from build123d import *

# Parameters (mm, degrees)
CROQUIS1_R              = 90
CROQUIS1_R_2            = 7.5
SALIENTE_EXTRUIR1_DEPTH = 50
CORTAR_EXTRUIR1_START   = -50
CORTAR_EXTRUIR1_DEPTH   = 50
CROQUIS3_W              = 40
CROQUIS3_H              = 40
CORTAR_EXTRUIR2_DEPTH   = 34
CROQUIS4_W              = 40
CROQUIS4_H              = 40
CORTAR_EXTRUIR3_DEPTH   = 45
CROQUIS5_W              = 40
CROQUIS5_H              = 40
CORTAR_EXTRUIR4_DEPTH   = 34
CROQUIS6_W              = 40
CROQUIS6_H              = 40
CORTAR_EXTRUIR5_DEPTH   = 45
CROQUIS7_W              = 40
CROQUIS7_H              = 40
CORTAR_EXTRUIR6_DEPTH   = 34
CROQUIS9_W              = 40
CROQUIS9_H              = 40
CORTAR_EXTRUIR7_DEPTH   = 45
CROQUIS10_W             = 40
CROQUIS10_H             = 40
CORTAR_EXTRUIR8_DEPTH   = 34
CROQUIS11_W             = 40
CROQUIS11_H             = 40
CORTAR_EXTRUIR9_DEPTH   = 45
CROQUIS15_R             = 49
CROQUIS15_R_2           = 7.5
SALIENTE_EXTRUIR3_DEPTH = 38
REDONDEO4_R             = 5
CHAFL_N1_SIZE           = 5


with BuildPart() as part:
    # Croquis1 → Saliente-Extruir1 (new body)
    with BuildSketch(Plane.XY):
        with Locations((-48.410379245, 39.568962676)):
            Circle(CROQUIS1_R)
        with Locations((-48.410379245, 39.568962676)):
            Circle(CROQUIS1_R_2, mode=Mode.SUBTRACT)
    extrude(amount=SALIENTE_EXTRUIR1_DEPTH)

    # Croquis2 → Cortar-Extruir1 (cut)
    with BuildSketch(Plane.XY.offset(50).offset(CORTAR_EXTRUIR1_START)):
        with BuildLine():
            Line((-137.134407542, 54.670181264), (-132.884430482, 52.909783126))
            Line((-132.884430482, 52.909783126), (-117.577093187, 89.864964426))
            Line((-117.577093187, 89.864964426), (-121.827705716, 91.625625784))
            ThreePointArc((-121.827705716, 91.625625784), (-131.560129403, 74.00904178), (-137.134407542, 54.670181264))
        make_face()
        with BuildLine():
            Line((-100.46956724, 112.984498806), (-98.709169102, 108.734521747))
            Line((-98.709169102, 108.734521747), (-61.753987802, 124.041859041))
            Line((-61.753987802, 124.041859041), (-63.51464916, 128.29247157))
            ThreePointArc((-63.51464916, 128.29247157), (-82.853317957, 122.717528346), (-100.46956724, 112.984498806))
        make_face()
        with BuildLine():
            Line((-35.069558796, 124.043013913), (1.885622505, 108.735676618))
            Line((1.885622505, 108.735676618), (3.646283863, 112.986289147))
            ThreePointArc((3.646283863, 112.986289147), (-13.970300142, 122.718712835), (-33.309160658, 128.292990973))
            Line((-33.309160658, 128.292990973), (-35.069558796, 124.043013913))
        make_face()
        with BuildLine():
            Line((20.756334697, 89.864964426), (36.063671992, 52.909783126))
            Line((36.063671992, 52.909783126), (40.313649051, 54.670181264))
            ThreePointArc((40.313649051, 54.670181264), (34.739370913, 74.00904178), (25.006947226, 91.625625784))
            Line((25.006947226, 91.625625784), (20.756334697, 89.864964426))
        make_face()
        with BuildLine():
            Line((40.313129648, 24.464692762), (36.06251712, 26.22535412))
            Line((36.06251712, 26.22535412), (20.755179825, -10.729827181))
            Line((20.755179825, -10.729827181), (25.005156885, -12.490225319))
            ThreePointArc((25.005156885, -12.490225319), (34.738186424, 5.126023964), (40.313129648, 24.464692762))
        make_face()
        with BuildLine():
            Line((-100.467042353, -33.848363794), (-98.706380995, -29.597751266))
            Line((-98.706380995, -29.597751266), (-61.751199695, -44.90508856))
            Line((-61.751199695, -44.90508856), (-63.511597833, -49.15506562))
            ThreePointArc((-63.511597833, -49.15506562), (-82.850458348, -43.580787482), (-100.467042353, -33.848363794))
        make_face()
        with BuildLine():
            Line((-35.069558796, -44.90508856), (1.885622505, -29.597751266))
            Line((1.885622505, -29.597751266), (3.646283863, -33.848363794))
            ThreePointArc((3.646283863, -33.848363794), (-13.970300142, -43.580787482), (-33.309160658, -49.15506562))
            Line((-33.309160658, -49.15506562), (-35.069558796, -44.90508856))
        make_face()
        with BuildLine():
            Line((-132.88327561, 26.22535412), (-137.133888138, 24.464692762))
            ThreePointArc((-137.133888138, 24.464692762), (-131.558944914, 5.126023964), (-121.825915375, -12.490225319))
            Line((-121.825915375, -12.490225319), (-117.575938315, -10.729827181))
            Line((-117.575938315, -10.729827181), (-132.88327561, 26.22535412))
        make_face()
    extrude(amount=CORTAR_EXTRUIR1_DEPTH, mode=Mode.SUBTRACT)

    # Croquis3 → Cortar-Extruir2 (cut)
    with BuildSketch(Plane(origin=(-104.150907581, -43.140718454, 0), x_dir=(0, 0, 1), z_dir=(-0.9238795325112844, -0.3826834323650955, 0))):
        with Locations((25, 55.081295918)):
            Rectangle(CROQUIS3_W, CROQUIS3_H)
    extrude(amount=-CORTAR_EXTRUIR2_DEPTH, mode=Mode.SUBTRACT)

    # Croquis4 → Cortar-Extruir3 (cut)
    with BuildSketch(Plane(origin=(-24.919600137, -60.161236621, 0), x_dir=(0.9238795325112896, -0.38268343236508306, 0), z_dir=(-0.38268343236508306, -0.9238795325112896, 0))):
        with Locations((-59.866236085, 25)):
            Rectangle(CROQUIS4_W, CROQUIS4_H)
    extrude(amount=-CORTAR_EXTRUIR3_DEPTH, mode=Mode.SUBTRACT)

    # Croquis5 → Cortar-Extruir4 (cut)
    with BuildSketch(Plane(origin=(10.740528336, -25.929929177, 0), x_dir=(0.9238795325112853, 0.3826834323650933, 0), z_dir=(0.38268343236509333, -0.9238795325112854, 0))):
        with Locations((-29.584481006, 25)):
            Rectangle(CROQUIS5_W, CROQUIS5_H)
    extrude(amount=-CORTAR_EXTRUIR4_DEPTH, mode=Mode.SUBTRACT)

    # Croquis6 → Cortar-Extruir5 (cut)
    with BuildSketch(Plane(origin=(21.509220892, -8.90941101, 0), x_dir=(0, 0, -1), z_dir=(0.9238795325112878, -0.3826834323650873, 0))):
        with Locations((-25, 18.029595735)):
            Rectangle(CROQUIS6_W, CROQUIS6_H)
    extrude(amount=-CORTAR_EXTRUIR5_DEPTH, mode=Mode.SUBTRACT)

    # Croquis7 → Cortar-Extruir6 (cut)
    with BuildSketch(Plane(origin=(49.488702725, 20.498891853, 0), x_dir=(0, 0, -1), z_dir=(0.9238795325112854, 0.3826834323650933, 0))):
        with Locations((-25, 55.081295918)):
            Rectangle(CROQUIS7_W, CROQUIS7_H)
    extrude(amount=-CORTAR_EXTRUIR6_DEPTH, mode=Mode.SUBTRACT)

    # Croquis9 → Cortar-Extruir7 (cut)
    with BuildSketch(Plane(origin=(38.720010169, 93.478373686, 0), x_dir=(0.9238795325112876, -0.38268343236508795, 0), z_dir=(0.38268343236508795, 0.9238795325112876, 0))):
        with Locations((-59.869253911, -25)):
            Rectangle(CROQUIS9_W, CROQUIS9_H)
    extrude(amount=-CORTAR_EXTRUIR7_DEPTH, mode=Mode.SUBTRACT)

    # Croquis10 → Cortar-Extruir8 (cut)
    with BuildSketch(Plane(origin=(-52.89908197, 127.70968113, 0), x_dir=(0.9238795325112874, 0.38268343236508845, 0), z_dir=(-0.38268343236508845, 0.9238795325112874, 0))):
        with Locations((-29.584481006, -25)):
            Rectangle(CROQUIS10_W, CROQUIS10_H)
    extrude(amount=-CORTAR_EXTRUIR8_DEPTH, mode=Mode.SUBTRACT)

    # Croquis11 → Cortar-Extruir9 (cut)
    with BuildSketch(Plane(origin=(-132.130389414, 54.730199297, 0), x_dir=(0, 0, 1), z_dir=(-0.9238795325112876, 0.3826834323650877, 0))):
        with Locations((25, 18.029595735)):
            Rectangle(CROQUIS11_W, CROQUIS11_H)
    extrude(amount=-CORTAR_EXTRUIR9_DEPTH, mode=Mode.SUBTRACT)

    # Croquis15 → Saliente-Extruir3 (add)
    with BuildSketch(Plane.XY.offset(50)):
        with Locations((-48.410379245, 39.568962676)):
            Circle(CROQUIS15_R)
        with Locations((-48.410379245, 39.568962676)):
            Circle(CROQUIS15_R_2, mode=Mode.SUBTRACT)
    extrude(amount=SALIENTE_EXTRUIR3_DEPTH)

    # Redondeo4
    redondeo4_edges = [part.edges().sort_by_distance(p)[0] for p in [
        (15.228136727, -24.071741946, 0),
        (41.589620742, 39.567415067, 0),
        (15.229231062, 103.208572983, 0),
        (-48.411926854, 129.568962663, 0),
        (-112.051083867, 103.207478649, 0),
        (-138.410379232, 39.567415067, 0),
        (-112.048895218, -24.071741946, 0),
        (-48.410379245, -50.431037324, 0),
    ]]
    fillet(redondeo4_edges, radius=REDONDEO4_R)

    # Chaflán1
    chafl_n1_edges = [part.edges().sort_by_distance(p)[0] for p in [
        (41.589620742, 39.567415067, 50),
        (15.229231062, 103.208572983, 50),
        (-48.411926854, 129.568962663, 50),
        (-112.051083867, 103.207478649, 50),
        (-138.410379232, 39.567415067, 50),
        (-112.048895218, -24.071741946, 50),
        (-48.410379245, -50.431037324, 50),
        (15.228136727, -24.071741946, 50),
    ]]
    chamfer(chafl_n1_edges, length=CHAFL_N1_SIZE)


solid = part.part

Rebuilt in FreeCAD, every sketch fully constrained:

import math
import FreeCAD as App
import Part
import Sketcher

V = App.Vector
Q = App.Units.Quantity


def edges_at(feature, points):
    """Names of the edges that pass closest to the given points."""
    edges = feature.Shape.Edges
    near = lambda p: min(range(len(edges)), key=lambda i: edges[i].distToShape(Part.Vertex(*p))[0])
    return sorted({f"Edge{near(p) + 1}" for p in points})


def add_polygon(sketch, points):
    """Adds a closed chain of lines whose ends are joined by coincident constraints."""
    first, n = sketch.GeometryCount, len(points)
    for a, b in zip(points, points[1:] + points[:1]):
        sketch.addGeometry(Part.LineSegment(App.Vector(*a, 0), App.Vector(*b, 0)), False)
    for i in range(n):
        sketch.addConstraint(Sketcher.Constraint("Coincident", first + i, 2, first + (i + 1) % n, 1))

doc = App.newDocument("Part")
params = doc.addObject("Spreadsheet::Sheet", "Params")
for row, (alias, value) in enumerate([
    ("sketch1_diameter", "180 mm"),
    ("sketch1_diameter2", "15 mm"),
    ("pad1_length", "50 mm"),
    ("sketch2_radius", "90 mm"),
    ("sketch2_length", "40 mm"),
    ("pocket1_length", "50 mm"),
    ("sketch3_width", "40 mm"),
    ("pocket2_length", "34 mm"),
    ("sketch4_width", "40 mm"),
    ("pocket3_length", "45 mm"),
    ("sketch5_width", "40 mm"),
    ("pocket4_length", "34 mm"),
    ("sketch6_width", "40 mm"),
    ("pocket5_length", "45 mm"),
    ("sketch7_width", "40 mm"),
    ("pocket6_length", "34 mm"),
    ("sketch8_width", "40 mm"),
    ("pocket7_length", "45 mm"),
    ("sketch9_width", "40 mm"),
    ("pocket8_length", "34 mm"),
    ("sketch10_width", "40 mm"),
    ("pocket9_length", "45 mm"),
    ("sketch11_diameter", "98 mm"),
    ("sketch11_diameter2", "15 mm"),
    ("pad2_length", "38 mm"),
    ("fillet_radius", "5 mm"),
    ("chamfer_size", "5 mm"),
], start=1):
    params.set(f"A{row}", alias)
    params.set(f"B{row}", "=" + value)
    params.setAlias(f"B{row}", alias)

body = doc.addObject("PartDesign::Body", "Body")

sketch1 = body.newObject("Sketcher::SketchObject", "Sketch")
sketch1.AttachmentSupport = (doc.getObject("XY_Plane"), [""])
sketch1.MapMode = "FlatFace"
sketch1.addGeometry(Part.Circle(V(-48, 40, 0), V(0, 0, 1), 90), False)
sketch1.addGeometry(Part.Circle(V(-48, 40, 0), V(0, 0, 1), 8), False)
sketch1.addConstraint(Sketcher.Constraint("Coincident", 1, 3, 0, 3))
sketch1.addConstraint(Sketcher.Constraint("Diameter", 0, 180.0))
sketch1.addConstraint(Sketcher.Constraint("Diameter", 1, 15.0))
sketch1.addConstraint(Sketcher.Constraint("DistanceX", 0, 3, -1, 1, 48.410379))
sketch1.addConstraint(Sketcher.Constraint("DistanceY", -1, 1, 0, 3, 39.568963))
sketch1.setExpression("Constraints[1]", "Params.sketch1_diameter")
sketch1.setExpression("Constraints[2]", "Params.sketch1_diameter2")
pad1 = body.newObject("PartDesign::Pad", "Pad")
pad1.Profile = sketch1
pad1.setExpression("Length", "Params.pad1_length")

sketch2 = body.newObject("Sketcher::SketchObject", "Sketch001")
sketch2.AttachmentSupport = (doc.getObject("XY_Plane"), [""])
sketch2.MapMode = "FlatFace"
sketch2.addGeometry(Part.LineSegment(V(-137.1, 54.7, 0), V(-132.9, 52.9, 0)), False)
sketch2.addGeometry(Part.LineSegment(V(-132.9, 52.9, 0), V(-117.6, 89.9, 0)), False)
sketch2.addGeometry(Part.LineSegment(V(-117.6, 89.9, 0), V(-121.8, 91.6, 0)), False)
sketch2.addGeometry(Part.ArcOfCircle(Part.Circle(V(-48.4, 39.6, 0), V(0, 0, 1), 90), math.radians(145), math.radians(170)), False)
sketch2.addGeometry(Part.LineSegment(V(-100.5, 113, 0), V(-98.7, 108.7, 0)), False)
sketch2.addGeometry(Part.LineSegment(V(-98.7, 108.7, 0), V(-61.8, 124, 0)), False)
sketch2.addGeometry(Part.LineSegment(V(-61.8, 124, 0), V(-63.5, 128.3, 0)), False)
sketch2.addGeometry(Part.ArcOfCircle(Part.Circle(V(-48.4, 39.6, 0), V(0, 0, 1), 90), math.radians(100), math.radians(125)), False)
sketch2.addGeometry(Part.LineSegment(V(-35.1, 124, 0), V(1.9, 108.7, 0)), False)
sketch2.addGeometry(Part.LineSegment(V(1.9, 108.7, 0), V(3.6, 113, 0)), False)
sketch2.addGeometry(Part.ArcOfCircle(Part.Circle(V(-48.4, 39.6, 0), V(0, 0, 1), 90), math.radians(55), math.radians(80)), False)
sketch2.addGeometry(Part.LineSegment(V(-33.3, 128.3, 0), V(-35.1, 124, 0)), False)
sketch2.addGeometry(Part.LineSegment(V(20.8, 89.9, 0), V(36.1, 52.9, 0)), False)
sketch2.addGeometry(Part.LineSegment(V(36.1, 52.9, 0), V(40.3, 54.7, 0)), False)
sketch2.addGeometry(Part.ArcOfCircle(Part.Circle(V(-48.4, 39.6, 0), V(0, 0, 1), 90), math.radians(10), math.radians(35)), False)
sketch2.addGeometry(Part.LineSegment(V(25, 91.6, 0), V(20.8, 89.9, 0)), False)
sketch2.addGeometry(Part.LineSegment(V(40.3, 24.5, 0), V(36.1, 26.2, 0)), False)
sketch2.addGeometry(Part.LineSegment(V(36.1, 26.2, 0), V(20.8, -10.7, 0)), False)
sketch2.addGeometry(Part.LineSegment(V(20.8, -10.7, 0), V(25, -12.5, 0)), False)
sketch2.addGeometry(Part.ArcOfCircle(Part.Circle(V(-48.4, 39.6, 0), V(0, 0, 1), 90), math.radians(-35), math.radians(-10)), False)
sketch2.addGeometry(Part.LineSegment(V(-98.7, -29.6, 0), V(-100.5, -33.8, 0)), False)
sketch2.addGeometry(Part.ArcOfCircle(Part.Circle(V(-48.4, 39.6, 0), V(0, 0, 1), 90), math.radians(-125), math.radians(-100)), False)
sketch2.addGeometry(Part.LineSegment(V(-63.5, -49.2, 0), V(-61.8, -44.9, 0)), False)
sketch2.addGeometry(Part.LineSegment(V(-61.8, -44.9, 0), V(-98.7, -29.6, 0)), False)
sketch2.addGeometry(Part.LineSegment(V(1.9, -29.6, 0), V(-35.1, -44.9, 0)), False)
sketch2.addGeometry(Part.LineSegment(V(-35.1, -44.9, 0), V(-33.3, -49.2, 0)), False)
sketch2.addGeometry(Part.ArcOfCircle(Part.Circle(V(-48.4, 39.6, 0), V(0, 0, 1), 90), math.radians(-80), math.radians(-55)), False)
sketch2.addGeometry(Part.LineSegment(V(3.6, -33.8, 0), V(1.9, -29.6, 0)), False)
sketch2.addGeometry(Part.LineSegment(V(-132.9, 26.2, 0), V(-137.1, 24.5, 0)), False)
sketch2.addGeometry(Part.ArcOfCircle(Part.Circle(V(-48.4, 39.6, 0), V(0, 0, 1), 90), math.radians(-170), math.radians(-145)), False)
sketch2.addGeometry(Part.LineSegment(V(-121.8, -12.5, 0), V(-117.6, -10.7, 0)), False)
sketch2.addGeometry(Part.LineSegment(V(-117.6, -10.7, 0), V(-132.9, 26.2, 0)), False)
sketch2.addConstraint(Sketcher.Constraint("Coincident", 0, 2, 1, 1))
sketch2.addConstraint(Sketcher.Constraint("Coincident", 1, 2, 2, 1))
sketch2.addConstraint(Sketcher.Constraint("Coincident", 2, 2, 3, 1))
sketch2.addConstraint(Sketcher.Constraint("Coincident", 3, 2, 0, 1))
sketch2.addConstraint(Sketcher.Constraint("Coincident", 4, 2, 5, 1))
sketch2.addConstraint(Sketcher.Constraint("Coincident", 5, 2, 6, 1))
sketch2.addConstraint(Sketcher.Constraint("Coincident", 6, 2, 7, 1))
sketch2.addConstraint(Sketcher.Constraint("Coincident", 7, 2, 4, 1))
sketch2.addConstraint(Sketcher.Constraint("Coincident", 8, 2, 9, 1))
sketch2.addConstraint(Sketcher.Constraint("Coincident", 9, 2, 10, 1))
sketch2.addConstraint(Sketcher.Constraint("Coincident", 10, 2, 11, 1))
sketch2.addConstraint(Sketcher.Constraint("Coincident", 11, 2, 8, 1))
sketch2.addConstraint(Sketcher.Constraint("Coincident", 12, 2, 13, 1))
sketch2.addConstraint(Sketcher.Constraint("Coincident", 13, 2, 14, 1))
sketch2.addConstraint(Sketcher.Constraint("Coincident", 14, 2, 15, 1))
sketch2.addConstraint(Sketcher.Constraint("Coincident", 15, 2, 12, 1))
sketch2.addConstraint(Sketcher.Constraint("Coincident", 16, 2, 17, 1))
sketch2.addConstraint(Sketcher.Constraint("Coincident", 17, 2, 18, 1))
sketch2.addConstraint(Sketcher.Constraint("Coincident", 18, 2, 19, 1))
sketch2.addConstraint(Sketcher.Constraint("Coincident", 19, 2, 16, 1))
sketch2.addConstraint(Sketcher.Constraint("Coincident", 20, 2, 21, 1))
sketch2.addConstraint(Sketcher.Constraint("Coincident", 21, 2, 22, 1))
sketch2.addConstraint(Sketcher.Constraint("Coincident", 22, 2, 23, 1))
sketch2.addConstraint(Sketcher.Constraint("Coincident", 23, 2, 20, 1))
sketch2.addConstraint(Sketcher.Constraint("Coincident", 24, 2, 25, 1))
sketch2.addConstraint(Sketcher.Constraint("Coincident", 25, 2, 26, 1))
sketch2.addConstraint(Sketcher.Constraint("Coincident", 26, 2, 27, 1))
sketch2.addConstraint(Sketcher.Constraint("Coincident", 27, 2, 24, 1))
sketch2.addConstraint(Sketcher.Constraint("Coincident", 28, 2, 29, 1))
sketch2.addConstraint(Sketcher.Constraint("Coincident", 29, 2, 30, 1))
sketch2.addConstraint(Sketcher.Constraint("Coincident", 30, 2, 31, 1))
sketch2.addConstraint(Sketcher.Constraint("Coincident", 31, 2, 28, 1))
sketch2.addConstraint(Sketcher.Constraint("Coincident", 7, 3, 3, 3))
sketch2.addConstraint(Sketcher.Constraint("Coincident", 10, 3, 3, 3))
sketch2.addConstraint(Sketcher.Constraint("Coincident", 14, 3, 3, 3))
sketch2.addConstraint(Sketcher.Constraint("Coincident", 19, 3, 3, 3))
sketch2.addConstraint(Sketcher.Constraint("Coincident", 21, 3, 3, 3))
sketch2.addConstraint(Sketcher.Constraint("Coincident", 26, 3, 3, 3))
sketch2.addConstraint(Sketcher.Constraint("Coincident", 29, 3, 3, 3))
sketch2.addConstraint(Sketcher.Constraint("Equal", 3, 7))
sketch2.addConstraint(Sketcher.Constraint("Equal", 7, 10))
sketch2.addConstraint(Sketcher.Constraint("Equal", 10, 14))
sketch2.addConstraint(Sketcher.Constraint("Equal", 14, 19))
sketch2.addConstraint(Sketcher.Constraint("Equal", 19, 21))
sketch2.addConstraint(Sketcher.Constraint("Equal", 21, 26))
sketch2.addConstraint(Sketcher.Constraint("Equal", 26, 29))
sketch2.addConstraint(Sketcher.Constraint("Perpendicular", 0, 1))
sketch2.addConstraint(Sketcher.Constraint("Perpendicular", 1, 2))
sketch2.addConstraint(Sketcher.Constraint("Perpendicular", 4, 5))
sketch2.addConstraint(Sketcher.Constraint("Perpendicular", 5, 6))
sketch2.addConstraint(Sketcher.Constraint("Parallel", 2, 8))
sketch2.addConstraint(Sketcher.Constraint("Perpendicular", 8, 9))
sketch2.addConstraint(Sketcher.Constraint("Parallel", 9, 11))
sketch2.addConstraint(Sketcher.Constraint("Parallel", 6, 12))
sketch2.addConstraint(Sketcher.Constraint("Perpendicular", 12, 13))
sketch2.addConstraint(Sketcher.Constraint("Parallel", 13, 15))
sketch2.addConstraint(Sketcher.Constraint("Perpendicular", 11, 16))
sketch2.addConstraint(Sketcher.Constraint("Perpendicular", 16, 17))
sketch2.addConstraint(Sketcher.Constraint("Perpendicular", 17, 18))
sketch2.addConstraint(Sketcher.Constraint("Perpendicular", 18, 20))
sketch2.addConstraint(Sketcher.Constraint("Parallel", 20, 22))
sketch2.addConstraint(Sketcher.Constraint("Perpendicular", 22, 23))
sketch2.addConstraint(Sketcher.Constraint("Parallel", 15, 24))
sketch2.addConstraint(Sketcher.Constraint("Perpendicular", 24, 25))
sketch2.addConstraint(Sketcher.Constraint("Parallel", 25, 27))
sketch2.addConstraint(Sketcher.Constraint("Perpendicular", 27, 28))
sketch2.addConstraint(Sketcher.Constraint("Parallel", 28, 30))
sketch2.addConstraint(Sketcher.Constraint("Perpendicular", 30, 31))
sketch2.addConstraint(Sketcher.Constraint("Horizontal", 0, 2, 12, 2))
sketch2.addConstraint(Sketcher.Constraint("Horizontal", 3, 2, 13, 2))
sketch2.addConstraint(Sketcher.Constraint("Horizontal", 2, 2, 14, 2))
sketch2.addConstraint(Sketcher.Constraint("Horizontal", 1, 2, 15, 2))
sketch2.addConstraint(Sketcher.Constraint("Horizontal", 22, 2, 24, 2))
sketch2.addConstraint(Sketcher.Constraint("Horizontal", 21, 2, 25, 2))
sketch2.addConstraint(Sketcher.Constraint("Horizontal", 20, 2, 26, 2))
sketch2.addConstraint(Sketcher.Constraint("Horizontal", 19, 2, 28, 2))
sketch2.addConstraint(Sketcher.Constraint("Horizontal", 18, 2, 29, 2))
sketch2.addConstraint(Sketcher.Constraint("Horizontal", 17, 2, 30, 2))
sketch2.addConstraint(Sketcher.Constraint("Vertical", 11, 2, 24, 2))
sketch2.addConstraint(Sketcher.Constraint("Vertical", 10, 2, 25, 2))
sketch2.addConstraint(Sketcher.Constraint("Vertical", 9, 2, 26, 2))
sketch2.addConstraint(Sketcher.Constraint("Equal", 0, 4))
sketch2.addConstraint(Sketcher.Constraint("Equal", 1, 5))
sketch2.addConstraint(Sketcher.Constraint("Equal", 2, 6))
sketch2.addConstraint(Sketcher.Constraint("Equal", 5, 8))
sketch2.addConstraint(Sketcher.Constraint("Equal", 6, 9))
sketch2.addConstraint(Sketcher.Constraint("Equal", 4, 11))
sketch2.addConstraint(Sketcher.Constraint("Equal", 15, 16))
sketch2.addConstraint(Sketcher.Constraint("Equal", 12, 17))
sketch2.addConstraint(Sketcher.Constraint("Equal", 13, 18))
sketch2.addConstraint(Sketcher.Constraint("Radius", 3, 90.0))
sketch2.addConstraint(Sketcher.Constraint("Distance", 1, 40.0))
sketch2.addConstraint(Sketcher.Constraint("Angle", 0, Q("-22.5 deg")))
sketch2.addConstraint(Sketcher.Constraint("DistanceY", 7, 3, 1, 2, 50.296002))
sketch2.addConstraint(Sketcher.Constraint("DistanceY", -1, 1, 7, 2, 112.984499))
sketch2.addConstraint(Sketcher.Constraint("DistanceX", 22, 2, -1, 1, 61.7512))
sketch2.addConstraint(Sketcher.Constraint("DistanceY", 12, 2, 13, 2, 1.760398))
sketch2.setExpression("Constraints[90]", "Params.sketch2_radius")
sketch2.setExpression("Constraints[91]", "Params.sketch2_length")
pocket1 = body.newObject("PartDesign::Pocket", "Pocket")
pocket1.Profile = sketch2
pocket1.setExpression("Length", "Params.pocket1_length")
pocket1.Reversed = True

sketch3 = body.newObject("Sketcher::SketchObject", "Sketch002")
sketch3.Placement = App.Placement(V(-104.150908, -43.140718, 0), App.Rotation(V(0, 0, 1), V(-0.382683432, 0.923879533, 0), V(-0.923879533, -0.382683432, 0), "ZXY"))
add_polygon(sketch3, [(5, 75), (5, 35), (45, 35), (45, 75)])
sketch3.addConstraint(Sketcher.Constraint("Vertical", 0))
sketch3.addConstraint(Sketcher.Constraint("Horizontal", 1))
sketch3.addConstraint(Sketcher.Constraint("Vertical", 2))
sketch3.addConstraint(Sketcher.Constraint("Horizontal", 3))
sketch3.addConstraint(Sketcher.Constraint("Equal", 3, 0))
sketch3.addConstraint(Sketcher.Constraint("DistanceX", 1, 1, 1, 2, 40.0))
sketch3.addConstraint(Sketcher.Constraint("DistanceX", -1, 1, 0, 2, 5.0))
sketch3.addConstraint(Sketcher.Constraint("DistanceY", -1, 1, 0, 2, 35.081296))
sketch3.setExpression("Constraints[9]", "Params.sketch3_width")
pocket2 = body.newObject("PartDesign::Pocket", "Pocket001")
pocket2.Profile = sketch3
pocket2.setExpression("Length", "Params.pocket2_length")

sketch4 = body.newObject("Sketcher::SketchObject", "Sketch003")
sketch4.Placement = App.Placement(V(-24.9196, -60.161237, 0), App.Rotation(V(0.923879533, -0.382683432, 0), V(0, 0, 1.000000001), V(-0.382683432, -0.923879533, 0), "ZXY"))
add_polygon(sketch4, [(-80, 45), (-80, 5), (-40, 5), (-40, 45)])
sketch4.addConstraint(Sketcher.Constraint("Vertical", 0))
sketch4.addConstraint(Sketcher.Constraint("Horizontal", 1))
sketch4.addConstraint(Sketcher.Constraint("Vertical", 2))
sketch4.addConstraint(Sketcher.Constraint("Horizontal", 3))
sketch4.addConstraint(Sketcher.Constraint("Equal", 3, 0))
sketch4.addConstraint(Sketcher.Constraint("DistanceX", 1, 1, 1, 2, 40.0))
sketch4.addConstraint(Sketcher.Constraint("DistanceY", -1, 1, 0, 2, 5.0))
sketch4.addConstraint(Sketcher.Constraint("DistanceX", 0, 2, -1, 1, 79.866236))
sketch4.setExpression("Constraints[9]", "Params.sketch4_width")
pocket3 = body.newObject("PartDesign::Pocket", "Pocket002")
pocket3.Profile = sketch4
pocket3.setExpression("Length", "Params.pocket3_length")

sketch5 = body.newObject("Sketcher::SketchObject", "Sketch004")
sketch5.Placement = App.Placement(V(10.740528, -25.929929, 0), App.Rotation(V(0.923879533, 0.382683432, 0), V(0, 0, 1.000000001), V(0.382683432, -0.923879533, 0), "ZXY"))
add_polygon(sketch5, [(-50, 45), (-50, 5), (-10, 5), (-10, 45)])
sketch5.addConstraint(Sketcher.Constraint("Vertical", 0))
sketch5.addConstraint(Sketcher.Constraint("Horizontal", 1))
sketch5.addConstraint(Sketcher.Constraint("Vertical", 2))
sketch5.addConstraint(Sketcher.Constraint("Horizontal", 3))
sketch5.addConstraint(Sketcher.Constraint("Equal", 3, 0))
sketch5.addConstraint(Sketcher.Constraint("DistanceX", 1, 1, 1, 2, 40.0))
sketch5.addConstraint(Sketcher.Constraint("DistanceY", -1, 1, 0, 2, 5.0))
sketch5.addConstraint(Sketcher.Constraint("DistanceX", 0, 2, -1, 1, 49.584481))
sketch5.setExpression("Constraints[9]", "Params.sketch5_width")
pocket4 = body.newObject("PartDesign::Pocket", "Pocket003")
pocket4.Profile = sketch5
pocket4.setExpression("Length", "Params.pocket4_length")

sketch6 = body.newObject("Sketcher::SketchObject", "Sketch005")
sketch6.Placement = App.Placement(V(21.509221, -8.909411, 0), App.Rotation(V(0, 0, -1), V(0.382683432, 0.923879533, 0), V(0.923879533, -0.382683432, 0), "ZXY"))
add_polygon(sketch6, [(-45, 38), (-45, -2), (-5, -2), (-5, 38)])
sketch6.addConstraint(Sketcher.Constraint("Vertical", 0))
sketch6.addConstraint(Sketcher.Constraint("Horizontal", 1))
sketch6.addConstraint(Sketcher.Constraint("Vertical", 2))
sketch6.addConstraint(Sketcher.Constraint("Horizontal", 3))
sketch6.addConstraint(Sketcher.Constraint("Equal", 3, 0))
sketch6.addConstraint(Sketcher.Constraint("DistanceX", 1, 1, 1, 2, 40.0))
sketch6.addConstraint(Sketcher.Constraint("DistanceX", 0, 2, -1, 1, 45.0))
sketch6.addConstraint(Sketcher.Constraint("DistanceY", 0, 2, -1, 1, 1.970404))
sketch6.setExpression("Constraints[9]", "Params.sketch6_width")
pocket5 = body.newObject("PartDesign::Pocket", "Pocket004")
pocket5.Profile = sketch6
pocket5.setExpression("Length", "Params.pocket5_length")

sketch7 = body.newObject("Sketcher::SketchObject", "Sketch006")
sketch7.Placement = App.Placement(V(49.488703, 20.498892, 0), App.Rotation(V(0, 0, -1), V(-0.382683432, 0.923879533, 0), V(0.923879533, 0.382683432, 0), "ZXY"))
add_polygon(sketch7, [(-45, 75), (-45, 35), (-5, 35), (-5, 75)])
sketch7.addConstraint(Sketcher.Constraint("Vertical", 0))
sketch7.addConstraint(Sketcher.Constraint("Horizontal", 1))
sketch7.addConstraint(Sketcher.Constraint("Vertical", 2))
sketch7.addConstraint(Sketcher.Constraint("Horizontal", 3))
sketch7.addConstraint(Sketcher.Constraint("Equal", 3, 0))
sketch7.addConstraint(Sketcher.Constraint("DistanceX", 1, 1, 1, 2, 40.0))
sketch7.addConstraint(Sketcher.Constraint("DistanceX", 0, 2, -1, 1, 45.0))
sketch7.addConstraint(Sketcher.Constraint("DistanceY", -1, 1, 0, 2, 35.081296))
sketch7.setExpression("Constraints[9]", "Params.sketch7_width")
pocket6 = body.newObject("PartDesign::Pocket", "Pocket005")
pocket6.Profile = sketch7
pocket6.setExpression("Length", "Params.pocket6_length")

sketch8 = body.newObject("Sketcher::SketchObject", "Sketch007")
sketch8.Placement = App.Placement(V(38.72001, 93.478374, 0), App.Rotation(V(0.923879533, -0.382683432, 0), V(0, 0, -1.000000001), V(0.382683432, 0.923879533, 0), "ZXY"))
add_polygon(sketch8, [(-80, -5), (-80, -45), (-40, -45), (-40, -5)])
sketch8.addConstraint(Sketcher.Constraint("Vertical", 0))
sketch8.addConstraint(Sketcher.Constraint("Horizontal", 1))
sketch8.addConstraint(Sketcher.Constraint("Vertical", 2))
sketch8.addConstraint(Sketcher.Constraint("Horizontal", 3))
sketch8.addConstraint(Sketcher.Constraint("Equal", 3, 0))
sketch8.addConstraint(Sketcher.Constraint("DistanceX", 1, 1, 1, 2, 40.0))
sketch8.addConstraint(Sketcher.Constraint("DistanceY", 0, 2, -1, 1, 45.0))
sketch8.addConstraint(Sketcher.Constraint("DistanceX", 0, 2, -1, 1, 79.869254))
sketch8.setExpression("Constraints[9]", "Params.sketch8_width")
pocket7 = body.newObject("PartDesign::Pocket", "Pocket006")
pocket7.Profile = sketch8
pocket7.setExpression("Length", "Params.pocket7_length")

sketch9 = body.newObject("Sketcher::SketchObject", "Sketch008")
sketch9.Placement = App.Placement(V(-52.899082, 127.709681, 0), App.Rotation(V(0.923879533, 0.382683432, 0), V(0, 0, -1.000000001), V(-0.382683432, 0.923879533, 0), "ZXY"))
add_polygon(sketch9, [(-50, -5), (-50, -45), (-10, -45), (-10, -5)])
sketch9.addConstraint(Sketcher.Constraint("Vertical", 0))
sketch9.addConstraint(Sketcher.Constraint("Horizontal", 1))
sketch9.addConstraint(Sketcher.Constraint("Vertical", 2))
sketch9.addConstraint(Sketcher.Constraint("Horizontal", 3))
sketch9.addConstraint(Sketcher.Constraint("Equal", 3, 0))
sketch9.addConstraint(Sketcher.Constraint("DistanceX", 1, 1, 1, 2, 40.0))
sketch9.addConstraint(Sketcher.Constraint("DistanceY", 0, 2, -1, 1, 45.0))
sketch9.addConstraint(Sketcher.Constraint("DistanceX", 0, 2, -1, 1, 49.584481))
sketch9.setExpression("Constraints[9]", "Params.sketch9_width")
pocket8 = body.newObject("PartDesign::Pocket", "Pocket007")
pocket8.Profile = sketch9
pocket8.setExpression("Length", "Params.pocket8_length")

sketch10 = body.newObject("Sketcher::SketchObject", "Sketch009")
sketch10.Placement = App.Placement(V(-132.130389, 54.730199, 0), App.Rotation(V(0, 0, 1), V(0.382683432, 0.923879533, 0), V(-0.923879533, 0.382683432, 0), "ZXY"))
add_polygon(sketch10, [(5, 38), (5, -2), (45, -2), (45, 38)])
sketch10.addConstraint(Sketcher.Constraint("Vertical", 0))
sketch10.addConstraint(Sketcher.Constraint("Horizontal", 1))
sketch10.addConstraint(Sketcher.Constraint("Vertical", 2))
sketch10.addConstraint(Sketcher.Constraint("Horizontal", 3))
sketch10.addConstraint(Sketcher.Constraint("Equal", 3, 0))
sketch10.addConstraint(Sketcher.Constraint("DistanceX", 1, 1, 1, 2, 40.0))
sketch10.addConstraint(Sketcher.Constraint("DistanceX", -1, 1, 0, 2, 5.0))
sketch10.addConstraint(Sketcher.Constraint("DistanceY", 0, 2, -1, 1, 1.970404))
sketch10.setExpression("Constraints[9]", "Params.sketch10_width")
pocket9 = body.newObject("PartDesign::Pocket", "Pocket008")
pocket9.Profile = sketch10
pocket9.setExpression("Length", "Params.pocket9_length")

sketch11 = body.newObject("Sketcher::SketchObject", "Sketch010")
sketch11.AttachmentSupport = (doc.getObject("XY_Plane"), [""])
sketch11.MapMode = "FlatFace"
sketch11.AttachmentOffset = App.Placement(V(0, 0, 50), App.Rotation())
sketch11.addGeometry(Part.Circle(V(-48, 40, 0), V(0, 0, 1), 49), False)
sketch11.addGeometry(Part.Circle(V(-48, 40, 0), V(0, 0, 1), 8), False)
sketch11.addConstraint(Sketcher.Constraint("Coincident", 1, 3, 0, 3))
sketch11.addConstraint(Sketcher.Constraint("Diameter", 0, 98.0))
sketch11.addConstraint(Sketcher.Constraint("Diameter", 1, 15.0))
sketch11.addConstraint(Sketcher.Constraint("DistanceX", 0, 3, -1, 1, 48.410379))
sketch11.addConstraint(Sketcher.Constraint("DistanceY", -1, 1, 0, 3, 39.568963))
sketch11.setExpression("Constraints[1]", "Params.sketch11_diameter")
sketch11.setExpression("Constraints[2]", "Params.sketch11_diameter2")
pad2 = body.newObject("PartDesign::Pad", "Pad001")
pad2.Profile = sketch11
pad2.setExpression("Length", "Params.pad2_length")
doc.recompute()

fillet = body.newObject("PartDesign::Fillet", "Fillet")
fillet.Base = (pad2, edges_at(pad2, [
    (15.228, -24.072, 0),
    (41.59, 39.567, 0),
    (15.229, 103.209, 0),
    (-48.412, 129.569, 0),
    (-112.051, 103.207, 0),
    (-138.41, 39.567, 0),
    (-112.049, -24.072, 0),
    (-48.41, -50.431, 0),
]))
fillet.setExpression("Radius", "Params.fillet_radius")
doc.recompute()

chamfer = body.newObject("PartDesign::Chamfer", "Chamfer")
chamfer.Base = (fillet, edges_at(fillet, [
    (41.59, 39.567, 50),
    (15.229, 103.209, 50),
    (-48.412, 129.569, 50),
    (-112.051, 103.207, 50),
    (-138.41, 39.567, 50),
    (-112.049, -24.072, 50),
    (-48.41, -50.431, 50),
    (15.228, -24.072, 50),
]))
chamfer.setExpression("Size", "Params.chamfer_size")

doc.recompute()
